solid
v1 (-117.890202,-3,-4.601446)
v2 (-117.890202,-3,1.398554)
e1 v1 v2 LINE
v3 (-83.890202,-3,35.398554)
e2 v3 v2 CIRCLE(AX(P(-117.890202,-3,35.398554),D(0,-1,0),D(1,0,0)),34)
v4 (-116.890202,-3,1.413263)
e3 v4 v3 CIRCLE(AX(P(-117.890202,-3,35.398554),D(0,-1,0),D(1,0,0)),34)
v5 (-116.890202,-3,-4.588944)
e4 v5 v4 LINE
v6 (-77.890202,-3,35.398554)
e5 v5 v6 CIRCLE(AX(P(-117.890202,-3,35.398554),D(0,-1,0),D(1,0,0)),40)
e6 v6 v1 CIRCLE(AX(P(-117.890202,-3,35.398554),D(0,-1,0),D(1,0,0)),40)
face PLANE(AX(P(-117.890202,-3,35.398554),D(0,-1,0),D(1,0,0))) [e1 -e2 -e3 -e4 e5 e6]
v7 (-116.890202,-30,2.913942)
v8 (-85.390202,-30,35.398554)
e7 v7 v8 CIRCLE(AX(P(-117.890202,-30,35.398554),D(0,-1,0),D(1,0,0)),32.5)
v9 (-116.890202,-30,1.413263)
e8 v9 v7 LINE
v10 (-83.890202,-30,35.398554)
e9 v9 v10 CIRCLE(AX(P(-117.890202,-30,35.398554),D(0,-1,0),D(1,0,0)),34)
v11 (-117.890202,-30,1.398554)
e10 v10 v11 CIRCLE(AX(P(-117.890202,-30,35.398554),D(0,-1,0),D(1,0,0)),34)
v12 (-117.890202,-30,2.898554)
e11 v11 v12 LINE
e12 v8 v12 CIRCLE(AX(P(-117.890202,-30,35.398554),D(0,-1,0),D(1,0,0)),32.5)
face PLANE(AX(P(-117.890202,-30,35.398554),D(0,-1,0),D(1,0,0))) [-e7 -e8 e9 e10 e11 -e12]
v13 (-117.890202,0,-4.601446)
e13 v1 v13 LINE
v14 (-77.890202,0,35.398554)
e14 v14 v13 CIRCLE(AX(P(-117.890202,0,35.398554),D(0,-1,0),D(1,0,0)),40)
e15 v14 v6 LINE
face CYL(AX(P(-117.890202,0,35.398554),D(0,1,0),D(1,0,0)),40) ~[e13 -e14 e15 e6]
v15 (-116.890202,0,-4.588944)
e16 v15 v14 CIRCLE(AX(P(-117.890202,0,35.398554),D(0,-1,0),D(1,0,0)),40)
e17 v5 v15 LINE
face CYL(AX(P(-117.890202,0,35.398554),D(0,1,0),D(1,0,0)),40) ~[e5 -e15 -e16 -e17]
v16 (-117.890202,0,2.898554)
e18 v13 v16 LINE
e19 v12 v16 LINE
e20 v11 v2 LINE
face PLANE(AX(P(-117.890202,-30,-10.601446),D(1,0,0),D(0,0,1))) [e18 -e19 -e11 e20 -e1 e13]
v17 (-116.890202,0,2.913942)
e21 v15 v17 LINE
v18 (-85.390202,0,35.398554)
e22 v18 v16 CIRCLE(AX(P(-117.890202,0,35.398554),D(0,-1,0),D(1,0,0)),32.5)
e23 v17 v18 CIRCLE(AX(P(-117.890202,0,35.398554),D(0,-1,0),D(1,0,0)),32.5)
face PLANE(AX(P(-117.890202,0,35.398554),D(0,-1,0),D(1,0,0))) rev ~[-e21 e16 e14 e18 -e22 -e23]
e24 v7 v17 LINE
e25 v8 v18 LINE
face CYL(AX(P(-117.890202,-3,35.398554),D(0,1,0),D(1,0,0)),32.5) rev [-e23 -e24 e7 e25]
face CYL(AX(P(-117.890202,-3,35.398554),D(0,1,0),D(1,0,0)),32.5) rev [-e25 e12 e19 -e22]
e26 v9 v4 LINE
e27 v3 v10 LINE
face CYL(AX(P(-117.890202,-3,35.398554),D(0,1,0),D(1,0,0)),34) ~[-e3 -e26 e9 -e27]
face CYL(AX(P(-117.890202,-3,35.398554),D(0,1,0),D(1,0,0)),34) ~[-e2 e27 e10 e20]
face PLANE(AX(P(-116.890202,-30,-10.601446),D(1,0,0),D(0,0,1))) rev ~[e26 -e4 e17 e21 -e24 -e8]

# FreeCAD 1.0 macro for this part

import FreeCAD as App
import Part
import Sketcher
from FreeCAD import Vector
Q = App.Units.Quantity


def add_polygon(sketch, points):
    """Adds a closed chain of lines whose ends are joined by coincident constraints."""
    first, n = sketch.GeometryCount, len(points)
    for a, b in zip(points, points[1:] + points[:1]):
        sketch.addGeometry(Part.LineSegment(App.Vector(*a, 0), App.Vector(*b, 0)), False)
    for i in range(n):
        sketch.addConstraint(Sketcher.Constraint("Coincident", first + i, 2, first + (i + 1) % n, 1))

doc = App.newDocument("Part")
body = doc.addObject("PartDesign::Body", "Body")

sketch1 = body.newObject("Sketcher::SketchObject", "Sketch")
sketch1.AttachmentSupport = (doc.getObject("XZ_Plane"), [""])
sketch1.MapMode = "FlatFace"
sketch1.addGeometry(Part.Circle(Vector(-118, 35, 0), Vector(0, 0, 1), 40), False)
sketch1.addGeometry(Part.Circle(Vector(-118, 35, 0), Vector(0, 0, 1), 32), False)
sketch1.addConstraint(Sketcher.Constraint("Coincident", 1, 3, 0, 3))
sketch1.addConstraint(Sketcher.Constraint("Diameter", 0, Q("80 mm")))
sketch1.addConstraint(Sketcher.Constraint("Diameter", 1, Q("65 mm")))
sketch1.addConstraint(Sketcher.Constraint("DistanceX", 0, 3, -1, 1, Q("117.890202 mm")))
sketch1.addConstraint(Sketcher.Constraint("DistanceY", -1, 1, 0, 3, Q("35.398554 mm")))
pad1 = body.newObject("PartDesign::Pad", "Pad")
pad1.Profile = sketch1
pad1.Length = 3

sketch2 = body.newObject("Sketcher::SketchObject", "Sketch001")
sketch2.AttachmentSupport = (doc.getObject("XZ_Plane"), [""])
sketch2.MapMode = "FlatFace"
sketch2.AttachmentOffset = App.Placement(Vector(0, 0, 3), App.Rotation())
sketch2.addGeometry(Part.Circle(Vector(-118, 35, 0), Vector(0, 0, 1), 34), False)
sketch2.addGeometry(Part.Circle(Vector(-118, 35, 0), Vector(0, 0, 1), 32), False)
sketch2.addConstraint(Sketcher.Constraint("Coincident", 1, 3, 0, 3))
sketch2.addConstraint(Sketcher.Constraint("Diameter", 0, Q("68 mm")))
sketch2.addConstraint(Sketcher.Constraint("Diameter", 1, Q("65 mm")))
sketch2.addConstraint(Sketcher.Constraint("DistanceX", 0, 3, -1, 1, Q("117.890202 mm")))
sketch2.addConstraint(Sketcher.Constraint("DistanceY", -1, 1, 0, 3, Q("35.398554 mm")))
pad2 = body.newObject("PartDesign::Pad", "Pad001")
pad2.Profile = sketch2
pad2.Length = 27

sketch3 = body.newObject("Sketcher::SketchObject", "Sketch002")
sketch3.AttachmentSupport = (doc.getObject("XZ_Plane"), [""])
sketch3.MapMode = "FlatFace"
sketch3.AttachmentOffset = App.Placement(Vector(0, 0, 30), App.Rotation())
add_polygon(sketch3, [(-117.9, 35.4), (-117.9, -10.6), (-116.9, -10.6), (-116.9, 35.4)])
sketch3.addConstraint(Sketcher.Constraint("Vertical", 0))
sketch3.addConstraint(Sketcher.Constraint("Horizontal", 1))
sketch3.addConstraint(Sketcher.Constraint("Vertical", 2))
sketch3.addConstraint(Sketcher.Constraint("Horizontal", 3))
sketch3.addConstraint(Sketcher.Constraint("DistanceX", 1, 1, 1, 2, Q("1 mm")))
sketch3.addConstraint(Sketcher.Constraint("DistanceY", 0, 2, 0, 1, Q("46 mm")))
sketch3.addConstraint(Sketcher.Constraint("DistanceX", 0, 2, -1, 1, Q("117.890202 mm")))
sketch3.addConstraint(Sketcher.Constraint("DistanceY", 0, 2, -1, 1, Q("10.601446 mm")))
pocket1 = body.newObject("PartDesign::Pocket", "Pocket")
pocket1.Profile = sketch3
pocket1.Length = 56.9

doc.recompute()
